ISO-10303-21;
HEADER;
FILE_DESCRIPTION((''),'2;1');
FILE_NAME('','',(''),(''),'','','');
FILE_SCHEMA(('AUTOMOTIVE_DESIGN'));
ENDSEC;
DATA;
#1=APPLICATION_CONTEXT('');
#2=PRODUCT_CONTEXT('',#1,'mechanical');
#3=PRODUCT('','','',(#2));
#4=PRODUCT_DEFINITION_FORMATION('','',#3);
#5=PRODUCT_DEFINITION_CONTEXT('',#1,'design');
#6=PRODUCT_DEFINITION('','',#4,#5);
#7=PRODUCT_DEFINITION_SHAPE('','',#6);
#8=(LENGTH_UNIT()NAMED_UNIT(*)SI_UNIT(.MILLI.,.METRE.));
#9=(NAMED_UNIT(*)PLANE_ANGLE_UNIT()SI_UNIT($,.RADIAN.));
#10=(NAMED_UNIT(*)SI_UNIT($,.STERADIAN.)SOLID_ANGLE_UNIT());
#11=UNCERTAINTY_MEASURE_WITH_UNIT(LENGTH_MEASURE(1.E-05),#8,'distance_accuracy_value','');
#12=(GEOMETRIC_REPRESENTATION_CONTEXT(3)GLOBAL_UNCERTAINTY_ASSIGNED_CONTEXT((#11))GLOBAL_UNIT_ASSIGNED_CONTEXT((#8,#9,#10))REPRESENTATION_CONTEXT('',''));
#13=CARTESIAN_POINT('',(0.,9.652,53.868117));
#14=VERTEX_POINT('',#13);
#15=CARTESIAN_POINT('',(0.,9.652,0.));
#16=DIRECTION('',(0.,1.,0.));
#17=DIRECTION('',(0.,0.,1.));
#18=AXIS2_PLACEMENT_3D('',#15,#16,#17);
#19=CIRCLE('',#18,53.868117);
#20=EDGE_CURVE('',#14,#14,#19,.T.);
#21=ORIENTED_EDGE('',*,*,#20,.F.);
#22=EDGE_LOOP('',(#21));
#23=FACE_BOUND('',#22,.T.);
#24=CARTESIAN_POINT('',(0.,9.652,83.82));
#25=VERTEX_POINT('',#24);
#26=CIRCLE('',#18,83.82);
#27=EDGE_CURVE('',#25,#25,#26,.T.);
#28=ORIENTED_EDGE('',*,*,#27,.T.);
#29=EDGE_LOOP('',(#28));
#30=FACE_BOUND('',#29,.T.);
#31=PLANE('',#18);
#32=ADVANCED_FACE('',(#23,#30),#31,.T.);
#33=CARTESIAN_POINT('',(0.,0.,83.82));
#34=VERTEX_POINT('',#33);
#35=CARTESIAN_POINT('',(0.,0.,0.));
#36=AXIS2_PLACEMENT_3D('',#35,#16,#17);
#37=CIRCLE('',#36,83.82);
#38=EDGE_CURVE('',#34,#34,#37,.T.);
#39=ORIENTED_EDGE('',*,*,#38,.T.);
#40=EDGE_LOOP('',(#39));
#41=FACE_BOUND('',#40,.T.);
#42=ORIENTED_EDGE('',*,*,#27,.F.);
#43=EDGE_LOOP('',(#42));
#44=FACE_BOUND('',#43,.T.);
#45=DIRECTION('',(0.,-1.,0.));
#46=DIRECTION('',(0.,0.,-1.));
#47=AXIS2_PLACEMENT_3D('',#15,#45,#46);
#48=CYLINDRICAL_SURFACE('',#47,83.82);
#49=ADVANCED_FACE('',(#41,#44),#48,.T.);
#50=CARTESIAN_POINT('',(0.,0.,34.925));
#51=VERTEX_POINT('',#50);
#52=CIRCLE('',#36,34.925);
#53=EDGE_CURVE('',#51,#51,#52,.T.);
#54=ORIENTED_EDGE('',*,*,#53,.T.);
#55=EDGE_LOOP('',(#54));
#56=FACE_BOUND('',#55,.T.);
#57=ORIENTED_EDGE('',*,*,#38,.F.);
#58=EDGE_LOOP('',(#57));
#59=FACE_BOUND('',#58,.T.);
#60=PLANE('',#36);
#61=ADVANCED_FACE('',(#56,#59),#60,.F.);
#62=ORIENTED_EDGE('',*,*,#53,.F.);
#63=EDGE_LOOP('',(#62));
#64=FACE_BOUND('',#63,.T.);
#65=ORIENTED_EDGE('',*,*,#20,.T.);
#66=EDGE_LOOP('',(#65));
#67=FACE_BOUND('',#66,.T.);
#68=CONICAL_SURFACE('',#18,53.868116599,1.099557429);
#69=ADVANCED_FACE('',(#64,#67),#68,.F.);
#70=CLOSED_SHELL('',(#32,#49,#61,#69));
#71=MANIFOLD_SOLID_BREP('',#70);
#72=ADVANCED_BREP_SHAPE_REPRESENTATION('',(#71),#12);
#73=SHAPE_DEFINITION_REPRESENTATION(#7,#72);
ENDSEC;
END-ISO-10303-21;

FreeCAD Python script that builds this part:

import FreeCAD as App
import Part
import Sketcher
Q = App.Units.Quantity

doc = App.newDocument("Part")
body = doc.addObject("PartDesign::Body", "Body")

sketch1 = body.newObject("Sketcher::SketchObject", "Sketch")
sketch1.AttachmentSupport = (doc.getObject("XZ_Plane"), [""])
sketch1.MapMode = "FlatFace"
sketch1.addGeometry(Part.Circle(App.Vector(0, 0, 0), App.Vector(0, 0, 1), 84), False)
sketch1.addGeometry(Part.Circle(App.Vector(0, 0, 0), App.Vector(0, 0, 1), 35), False)
sketch1.addConstraint(Sketcher.Constraint("Coincident", 0, 3, -1, 1))
sketch1.addConstraint(Sketcher.Constraint("Coincident", 1, 3, -1, 1))
sketch1.addConstraint(Sketcher.Constraint("Diameter", 0, Q("6.6 in")))
sketch1.addConstraint(Sketcher.Constraint("Diameter", 1, Q("2.75 in")))
pad1 = body.newObject("PartDesign::Pad", "Pad")
pad1.Profile = sketch1
pad1.Length = Q("0.38 in")
pad1.Reversed = True

sketch2 = body.newObject("Sketcher::SketchObject", "Sketch001")
sketch2.AttachmentSupport = (doc.getObject("XY_Plane"), [""])
sketch2.MapMode = "FlatFace"
sketch2.addGeometry(Part.LineSegment(App.Vector(-54, 10, 0), App.Vector(-35, 0, 0)), False)
sketch2.addGeometry(Part.LineSegment(App.Vector(-35, 0, 0), App.Vector(-35, 10, 0)), False)
sketch2.addGeometry(Part.LineSegment(App.Vector(-35, 10, 0), App.Vector(-54, 10, 0)), False)
sketch2.addConstraint(Sketcher.Constraint("Coincident", 0, 2, 1, 1))
sketch2.addConstraint(Sketcher.Constraint("Coincident", 1, 2, 2, 1))
sketch2.addConstraint(Sketcher.Constraint("Coincident", 2, 2, 0, 1))
sketch2.addConstraint(Sketcher.Constraint("Vertical", 1))
sketch2.addConstraint(Sketcher.Constraint("Horizontal", 2))
sketch2.addConstraint(Sketcher.Constraint("PointOnObject", 0, 2, -1))
sketch2.addConstraint(Sketcher.Constraint("Angle", 0, Q("-27 deg")))
sketch2.addConstraint(Sketcher.Constraint("DistanceY", 1, 1, 1, 2, Q("0.38 in")))
sketch2.addConstraint(Sketcher.Constraint("DistanceX", 0, 2, -1, 1, Q("1.375 in")))
groove = body.newObject("PartDesign::Groove", "Groove")
groove.Profile = sketch2
groove.ReferenceAxis = (sketch2, ["V_Axis"])
groove.Angle = 360

doc.recompute()
